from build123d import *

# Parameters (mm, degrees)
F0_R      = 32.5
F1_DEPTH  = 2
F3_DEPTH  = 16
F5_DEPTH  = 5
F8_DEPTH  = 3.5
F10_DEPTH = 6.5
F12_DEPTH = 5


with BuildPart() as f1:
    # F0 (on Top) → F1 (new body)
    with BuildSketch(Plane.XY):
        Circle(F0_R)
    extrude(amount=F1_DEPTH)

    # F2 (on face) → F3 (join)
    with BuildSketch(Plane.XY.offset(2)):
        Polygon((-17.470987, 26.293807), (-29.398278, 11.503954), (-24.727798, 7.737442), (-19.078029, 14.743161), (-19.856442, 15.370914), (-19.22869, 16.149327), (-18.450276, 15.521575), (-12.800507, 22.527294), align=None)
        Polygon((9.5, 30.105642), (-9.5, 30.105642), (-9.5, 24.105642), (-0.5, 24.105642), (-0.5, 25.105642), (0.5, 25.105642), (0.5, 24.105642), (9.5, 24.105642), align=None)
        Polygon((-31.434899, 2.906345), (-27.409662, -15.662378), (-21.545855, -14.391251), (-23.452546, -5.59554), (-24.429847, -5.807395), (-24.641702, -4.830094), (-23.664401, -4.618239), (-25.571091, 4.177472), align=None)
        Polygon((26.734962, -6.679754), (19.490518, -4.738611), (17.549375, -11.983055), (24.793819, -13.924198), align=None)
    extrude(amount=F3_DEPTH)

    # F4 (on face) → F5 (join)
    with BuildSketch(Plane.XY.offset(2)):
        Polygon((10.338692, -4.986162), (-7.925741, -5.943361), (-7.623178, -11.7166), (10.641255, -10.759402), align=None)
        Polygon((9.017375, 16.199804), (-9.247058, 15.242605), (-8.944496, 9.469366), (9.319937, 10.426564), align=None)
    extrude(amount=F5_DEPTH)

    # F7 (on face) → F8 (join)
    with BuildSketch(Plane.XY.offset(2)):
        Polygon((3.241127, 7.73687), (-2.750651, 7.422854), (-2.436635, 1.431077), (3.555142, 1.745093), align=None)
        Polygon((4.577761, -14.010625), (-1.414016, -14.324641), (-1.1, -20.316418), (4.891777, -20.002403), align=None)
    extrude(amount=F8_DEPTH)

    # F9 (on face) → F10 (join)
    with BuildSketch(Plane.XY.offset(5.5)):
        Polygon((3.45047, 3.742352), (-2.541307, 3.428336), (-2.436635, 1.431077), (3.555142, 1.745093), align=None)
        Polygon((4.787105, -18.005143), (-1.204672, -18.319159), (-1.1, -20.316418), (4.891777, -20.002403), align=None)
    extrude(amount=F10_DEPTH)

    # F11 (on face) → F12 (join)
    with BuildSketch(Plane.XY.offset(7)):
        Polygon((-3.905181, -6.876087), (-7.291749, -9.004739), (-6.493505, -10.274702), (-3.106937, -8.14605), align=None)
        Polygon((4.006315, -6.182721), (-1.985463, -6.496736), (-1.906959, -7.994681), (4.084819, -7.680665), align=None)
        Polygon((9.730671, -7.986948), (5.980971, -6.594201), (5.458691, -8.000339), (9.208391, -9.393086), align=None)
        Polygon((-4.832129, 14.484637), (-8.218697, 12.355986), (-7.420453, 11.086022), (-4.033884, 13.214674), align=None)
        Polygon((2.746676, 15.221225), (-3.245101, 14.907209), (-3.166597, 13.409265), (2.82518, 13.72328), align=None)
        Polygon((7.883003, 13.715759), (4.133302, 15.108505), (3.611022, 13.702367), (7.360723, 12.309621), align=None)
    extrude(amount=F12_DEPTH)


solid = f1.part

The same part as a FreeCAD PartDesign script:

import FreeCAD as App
import Part
import Sketcher

V = App.Vector
Q = App.Units.Quantity


def add_polygon(sketch, points):
    """Adds a closed chain of lines whose ends are joined by coincident constraints."""
    first, n = sketch.GeometryCount, len(points)
    for a, b in zip(points, points[1:] + points[:1]):
        sketch.addGeometry(Part.LineSegment(App.Vector(*a, 0), App.Vector(*b, 0)), False)
    for i in range(n):
        sketch.addConstraint(Sketcher.Constraint("Coincident", first + i, 2, first + (i + 1) % n, 1))

doc = App.newDocument("Part")
body = doc.addObject("PartDesign::Body", "Body")

# Sketch on XY plane
sketch1 = doc.addObject("Sketcher::SketchObject", "Sketch")
body.addObject(sketch1)
sketch1.AttachmentSupport = (doc.XY_Plane, [""])
sketch1.MapMode = "FlatFace"
sketch1.addGeometry(Part.Circle(V(0, 0, 0), V(0, 0, 1), 32.5), False)
sketch1.addConstraint([
    Sketcher.Constraint("Coincident", 0, 3, -1, 1),
    Sketcher.Constraint("Diameter", 0, Q("65 mm")),
])
pad1 = doc.addObject("PartDesign::Pad", "Pad")
body.addObject(pad1)
pad1.Profile = sketch1
pad1.Length = 2

# Sketch on XY plane
sketch2 = doc.addObject("Sketcher::SketchObject", "Sketch001")
body.addObject(sketch2)
sketch2.AttachmentSupport = (doc.XY_Plane, [""])
sketch2.MapMode = "FlatFace"
sketch2.AttachmentOffset = App.Placement(V(0, 0, 2), App.Rotation())
add_polygon(sketch2, [(-17.470987, 26.293807), (-29.398278, 11.503954), (-24.727798, 7.737442), (-19.078029, 14.743161), (-19.856442, 15.370914), (-19.22869, 16.149327), (-18.450276, 15.521575), (-12.800507, 22.527294)])  # lines 0-7
add_polygon(sketch2, [(9.5, 30.105642), (-9.5, 30.105642), (-9.5, 24.105642), (-0.5, 24.105642), (-0.5, 25.105642), (0.5, 25.105642), (0.5, 24.105642), (9.5, 24.105642)])  # lines 8-15
add_polygon(sketch2, [(-31.434899, 2.906345), (-27.409662, -15.662378), (-21.545855, -14.391251), (-23.452546, -5.59554), (-24.429847, -5.807395), (-24.641702, -4.830094), (-23.664401, -4.618239), (-25.571091, 4.177472)])  # lines 16-23
add_polygon(sketch2, [(26.734962, -6.679754), (19.490518, -4.738611), (17.549375, -11.983055), (24.793819, -13.924198)])  # lines 24-27
sketch2.addConstraint([
    Sketcher.Constraint("Horizontal", 8),
    Sketcher.Constraint("Vertical", 9),
    Sketcher.Constraint("Horizontal", 10),
    Sketcher.Constraint("Vertical", 11),
    Sketcher.Constraint("Horizontal", 12),
    Sketcher.Constraint("Vertical", 13),
    Sketcher.Constraint("Horizontal", 14),
    Sketcher.Constraint("Vertical", 15),
    Sketcher.Constraint("DistanceX", 8, 2, 8, 1, Q("19 mm")),
    Sketcher.Constraint("DistanceX", 10, 1, 10, 2, Q("9 mm")),
    Sketcher.Constraint("DistanceX", 12, 1, 12, 2, Q("1 mm")),
    Sketcher.Constraint("DistanceY", 9, 2, 9, 1, Q("6 mm")),
    Sketcher.Constraint("DistanceY", 11, 1, 11, 2, Q("1 mm")),
    Sketcher.Constraint("DistanceY", 13, 2, 13, 1, Q("1 mm")),
    Sketcher.Constraint("Distance", 0, Q("19.000001 mm")),
    Sketcher.Constraint("Distance", 1, Q("6 mm")),
    Sketcher.Constraint("Distance", 2, Q("8.999999 mm")),
    Sketcher.Constraint("Distance", 3, Q("1 mm")),
    Sketcher.Constraint("Distance", 4, Q("1 mm")),
    Sketcher.Constraint("Distance", 5, Q("1 mm")),
    Sketcher.Constraint("Distance", 6, Q("8.999999 mm")),
    Sketcher.Constraint("Distance", 7, Q("6 mm")),
    Sketcher.Constraint("Distance", 16, Q("19 mm")),
    Sketcher.Constraint("Distance", 17, Q("6 mm")),
    Sketcher.Constraint("Distance", 18, Q("9 mm")),
    Sketcher.Constraint("Distance", 19, Q("1 mm")),
    Sketcher.Constraint("Distance", 20, Q("1 mm")),
    Sketcher.Constraint("Distance", 21, Q("1 mm")),
    Sketcher.Constraint("Distance", 22, Q("9 mm")),
    Sketcher.Constraint("Distance", 23, Q("6.000001 mm")),
    Sketcher.Constraint("Distance", 24, Q("7.5 mm")),
    Sketcher.Constraint("Distance", 25, Q("7.5 mm")),
    Sketcher.Constraint("Distance", 26, Q("7.5 mm")),
    Sketcher.Constraint("Distance", 27, Q("7.5 mm")),
    Sketcher.Constraint("DistanceX", 8, 2, -1, 1, Q("9.5 mm")),
    Sketcher.Constraint("DistanceX", 1, 2, -1, 1, Q("24.727798 mm")),
    Sketcher.Constraint("DistanceX", 20, 2, -1, 1, Q("24.641702 mm")),
    Sketcher.Constraint("DistanceX", 21, 2, -1, 1, Q("23.664401 mm")),
    Sketcher.Constraint("DistanceX", 23, 2, -1, 1, Q("31.434899 mm")),
    Sketcher.Constraint("DistanceY", 18, 2, 2, 2, Q("20.338701 mm")),
    Sketcher.Constraint("DistanceX", 19, 2, 18, 2, Q("0.977301 mm")),
    Sketcher.Constraint("DistanceY", 19, 2, 20, 2, Q("0.977301 mm")),
    Sketcher.Constraint("DistanceX", 24, 2, 26, 2, Q("5.303301 mm")),
    Sketcher.Constraint("DistanceY", 25, 2, 27, 2, Q("5.303301 mm")),
    Sketcher.Constraint("DistanceX", 0, 2, -1, 1, Q("29.398278 mm")),
    Sketcher.Constraint("DistanceY", -1, 1, 1, 2, Q("7.737442 mm")),
    Sketcher.Constraint("DistanceX", 2, 2, -1, 1, Q("19.078029 mm")),
    Sketcher.Constraint("DistanceX", 4, 2, -1, 1, Q("19.22869 mm")),
    Sketcher.Constraint("DistanceY", -1, 1, 8, 2, Q("30.105642 mm")),
    Sketcher.Constraint("DistanceY", 17, 2, -1, 1, Q("14.391251 mm")),
    Sketcher.Constraint("DistanceX", 22, 2, -1, 1, Q("25.571091 mm")),
    Sketcher.Constraint("DistanceX", -1, 1, 24, 2, Q("19.490518 mm")),
    Sketcher.Constraint("DistanceY", 24, 2, -1, 1, Q("4.738611 mm")),
    Sketcher.Constraint("DistanceY", 0, 2, 3, 2, Q("3.86696 mm")),
    Sketcher.Constraint("DistanceY", 5, 2, 4, 2, Q("0.627752 mm")),
    Sketcher.Constraint("DistanceX", 5, 2, 6, 2, Q("5.649769 mm")),
])
pad2 = doc.addObject("PartDesign::Pad", "Pad001")
body.addObject(pad2)
pad2.Profile = sketch2
pad2.Length = 16

# Sketch on XY plane
sketch3 = doc.addObject("Sketcher::SketchObject", "Sketch002")
body.addObject(sketch3)
sketch3.AttachmentSupport = (doc.XY_Plane, [""])
sketch3.MapMode = "FlatFace"
sketch3.AttachmentOffset = App.Placement(V(0, 0, 2), App.Rotation())
add_polygon(sketch3, [(10.338692, -4.986162), (-7.925741, -5.943361), (-7.623178, -11.7166), (10.641255, -10.759402)])  # lines 0-3
add_polygon(sketch3, [(9.017375, 16.199804), (-9.247058, 15.242605), (-8.944496, 9.469366), (9.319937, 10.426564)])  # lines 4-7
sketch3.addConstraint([
    Sketcher.Constraint("Perpendicular", 0, 1),
    Sketcher.Constraint("Perpendicular", 1, 2),
    Sketcher.Constraint("Perpendicular", 2, 3),
    Sketcher.Constraint("Perpendicular", 3, 4),
    Sketcher.Constraint("Perpendicular", 4, 5),
    Sketcher.Constraint("Perpendicular", 5, 6),
    Sketcher.Constraint("Perpendicular", 6, 7),
    Sketcher.Constraint("Equal", 2, 4),
    Sketcher.Constraint("Equal", 3, 5),
    Sketcher.Constraint("Angle", 0, Q("-176.999998 deg")),
    Sketcher.Constraint("Distance", 0, Q("18.289498 mm")),
    Sketcher.Constraint("DistanceY", 1, 2, -1, 1, Q("11.7166 mm")),
    Sketcher.Constraint("Distance", 1, Q("5.781162 mm")),
    Sketcher.Constraint("DistanceX", 0, 2, -1, 1, Q("7.925741 mm")),
    Sketcher.Constraint("DistanceX", 4, 2, -1, 1, Q("9.247058 mm")),
    Sketcher.Constraint("DistanceY", 3, 2, 5, 2, Q("14.455528 mm")),
])
pad3 = doc.addObject("PartDesign::Pad", "Pad002")
body.addObject(pad3)
pad3.Profile = sketch3
pad3.Length = 5

# Sketch on XY plane
sketch4 = doc.addObject("Sketcher::SketchObject", "Sketch003")
body.addObject(sketch4)
sketch4.AttachmentSupport = (doc.XY_Plane, [""])
sketch4.MapMode = "FlatFace"
sketch4.AttachmentOffset = App.Placement(V(0, 0, 2), App.Rotation())
add_polygon(sketch4, [(3.241127, 7.73687), (-2.750651, 7.422854), (-2.436635, 1.431077), (3.555142, 1.745093)])  # lines 0-3
add_polygon(sketch4, [(4.577761, -14.010625), (-1.414016, -14.324641), (-1.1, -20.316418), (4.891777, -20.002403)])  # lines 4-7
sketch4.addConstraint([
    Sketcher.Constraint("Perpendicular", 0, 1),
    Sketcher.Constraint("Perpendicular", 1, 2),
    Sketcher.Constraint("Perpendicular", 2, 3),
    Sketcher.Constraint("Perpendicular", 3, 4),
    Sketcher.Constraint("Perpendicular", 4, 5),
    Sketcher.Constraint("Perpendicular", 5, 6),
    Sketcher.Constraint("Perpendicular", 6, 7),
    Sketcher.Constraint("Equal", 0, 1),
    Sketcher.Constraint("Equal", 3, 4),
    Sketcher.Constraint("Equal", 4, 5),
    Sketcher.Constraint("Angle", 0, Q("-176.999998 deg")),
    Sketcher.Constraint("Distance", 0, Q("6.000001 mm")),
    Sketcher.Constraint("DistanceX", 5, 2, -1, 1, Q("1.1 mm")),
    Sketcher.Constraint("DistanceY", 7, 2, 1, 2, Q("15.441702 mm")),
    Sketcher.Constraint("DistanceX", 0, 2, -1, 1, Q("2.750651 mm")),
    Sketcher.Constraint("DistanceY", -1, 1, 3, 2, Q("7.73687 mm")),
])
pad4 = doc.addObject("PartDesign::Pad", "Pad003")
body.addObject(pad4)
pad4.Profile = sketch4
pad4.Length = 3.5

# Sketch on XY plane
sketch5 = doc.addObject("Sketcher::SketchObject", "Sketch004")
body.addObject(sketch5)
sketch5.AttachmentSupport = (doc.XY_Plane, [""])
sketch5.MapMode = "FlatFace"
sketch5.AttachmentOffset = App.Placement(V(0, 0, 5.5), App.Rotation())
add_polygon(sketch5, [(3.45047, 3.742352), (-2.541307, 3.428336), (-2.436635, 1.431077), (3.555142, 1.745093)])  # lines 0-3
add_polygon(sketch5, [(4.787105, -18.005143), (-1.204672, -18.319159), (-1.1, -20.316418), (4.891777, -20.002403)])  # lines 4-7
sketch5.addConstraint([
    Sketcher.Constraint("Perpendicular", 0, 1),
    Sketcher.Constraint("Perpendicular", 1, 2),
    Sketcher.Constraint("Perpendicular", 2, 3),
    Sketcher.Constraint("Perpendicular", 3, 4),
    Sketcher.Constraint("Perpendicular", 4, 5),
    Sketcher.Constraint("Perpendicular", 5, 6),
    Sketcher.Constraint("Perpendicular", 6, 7),
    Sketcher.Constraint("Equal", 2, 4),
    Sketcher.Constraint("Equal", 3, 5),
    Sketcher.Constraint("Angle", 0, Q("-176.999997 deg")),
    Sketcher.Constraint("Distance", 0, Q("6 mm")),
    Sketcher.Constraint("Distance", 1, Q("2 mm")),
    Sketcher.Constraint("DistanceX", 5, 2, -1, 1, Q("1.1 mm")),
    Sketcher.Constraint("DistanceX", -1, 1, 2, 2, Q("3.555142 mm")),
    Sketcher.Constraint("DistanceY", -1, 1, 3, 2, Q("3.742352 mm")),
    Sketcher.Constraint("DistanceY", 4, 2, -1, 1, Q("18.319159 mm")),
])
pad5 = doc.addObject("PartDesign::Pad", "Pad004")
body.addObject(pad5)
pad5.Profile = sketch5
pad5.Length = 6.5

# Sketch on XY plane
sketch6 = doc.addObject("Sketcher::SketchObject", "Sketch005")
body.addObject(sketch6)
sketch6.AttachmentSupport = (doc.XY_Plane, [""])
sketch6.MapMode = "FlatFace"
sketch6.AttachmentOffset = App.Placement(V(0, 0, 7), App.Rotation())
add_polygon(sketch6, [(-3.905181, -6.876087), (-7.291749, -9.004739), (-6.493505, -10.274702), (-3.106937, -8.14605)])  # lines 0-3
add_polygon(sketch6, [(4.006315, -6.182721), (-1.985463, -6.496736), (-1.906959, -7.994681), (4.084819, -7.680665)])  # lines 4-7
add_polygon(sketch6, [(9.730671, -7.986948), (5.980971, -6.594201), (5.458691, -8.000339), (9.208391, -9.393086)])  # lines 8-11
add_polygon(sketch6, [(-4.832129, 14.484637), (-8.218697, 12.355986), (-7.420453, 11.086022), (-4.033884, 13.214674)])  # lines 12-15
add_polygon(sketch6, [(2.746676, 15.221225), (-3.245101, 14.907209), (-3.166597, 13.409265), (2.82518, 13.72328)])  # lines 16-19
add_polygon(sketch6, [(7.883003, 13.715759), (4.133302, 15.108505), (3.611022, 13.702367), (7.360723, 12.309621)])  # lines 20-23
sketch6.addConstraint([
    Sketcher.Constraint("Perpendicular", 0, 1),
    Sketcher.Constraint("Perpendicular", 1, 2),
    Sketcher.Constraint("Perpendicular", 2, 3),
    Sketcher.Constraint("Perpendicular", 4, 5),
    Sketcher.Constraint("Perpendicular", 5, 6),
    Sketcher.Constraint("Perpendicular", 6, 7),
    Sketcher.Constraint("Perpendicular", 8, 9),
    Sketcher.Constraint("Perpendicular", 9, 10),
    Sketcher.Constraint("Perpendicular", 10, 11),
    Sketcher.Constraint("Perpendicular", 3, 12),
    Sketcher.Constraint("Perpendicular", 12, 13),
    Sketcher.Constraint("Perpendicular", 13, 14),
    Sketcher.Constraint("Perpendicular", 14, 15),
    Sketcher.Constraint("Perpendicular", 7, 16),
    Sketcher.Constraint("Perpendicular", 16, 17),
    Sketcher.Constraint("Perpendicular", 17, 18),
    Sketcher.Constraint("Perpendicular", 18, 19),
    Sketcher.Constraint("Perpendicular", 11, 20),
    Sketcher.Constraint("Perpendicular", 20, 21),
    Sketcher.Constraint("Perpendicular", 21, 22),
    Sketcher.Constraint("Perpendicular", 22, 23),
    Sketcher.Constraint("Equal", 3, 5),
    Sketcher.Constraint("Equal", 2, 8),
    Sketcher.Constraint("Equal", 7, 9),
    Sketcher.Constraint("Equal", 10, 12),
    Sketcher.Constraint("Equal", 11, 13),
    Sketcher.Constraint("Equal", 6, 16),
    Sketcher.Constraint("Equal", 15, 17),
    Sketcher.Constraint("Equal", 14, 20),
    Sketcher.Constraint("Equal", 19, 21),
    Sketcher.Constraint("Angle", 4, Q("-177.000007 deg")),
    Sketcher.Constraint("Distance", 0, Q("4 mm")),
    Sketcher.Constraint("Distance", 4, Q("6.000001 mm")),
    Sketcher.Constraint("Distance", 1, Q("1.5 mm")),
    Sketcher.Constraint("DistanceX", 3, 2, 6, 2, Q("7.99 mm")),
    Sketcher.Constraint("DistanceY", 8, 2, -1, 1, Q("6.594201 mm")),
    Sketcher.Constraint("DistanceX", 16, 2, -1, 1, Q("3.245101 mm")),
    Sketcher.Constraint("DistanceX", -1, 1, 20, 2, Q("4.133302 mm")),
    Sketcher.Constraint("DistanceX", 9, 2, 10, 2, Q("3.7497 mm")),
    Sketcher.Constraint("DistanceX", 14, 2, 7, 2, Q("8.040199 mm")),
    Sketcher.Constraint("DistanceX", 12, 2, 17, 2, Q("5.0521 mm")),
    Sketcher.Constraint("DistanceX", 0, 2, -1, 1, Q("7.291749 mm")),
    Sketcher.Constraint("DistanceY", 0, 2, -1, 1, Q("9.004739 mm")),
    Sketcher.Constraint("DistanceY", 5, 2, -1, 1, Q("7.994681 mm")),
    Sketcher.Constraint("DistanceX", -1, 1, 8, 2, Q("5.980971 mm")),
    Sketcher.Constraint("DistanceY", -1, 1, 16, 2, Q("14.907209 mm")),
    Sketcher.Constraint("DistanceY", -1, 1, 22, 2, Q("12.309621 mm")),
    Sketcher.Constraint("DistanceY", 4, 2, 12, 2, Q("18.852722 mm")),
])
pad6 = doc.addObject("PartDesign::Pad", "Pad005")
body.addObject(pad6)
pad6.Profile = sketch6
pad6.Length = 5

doc.recompute()
